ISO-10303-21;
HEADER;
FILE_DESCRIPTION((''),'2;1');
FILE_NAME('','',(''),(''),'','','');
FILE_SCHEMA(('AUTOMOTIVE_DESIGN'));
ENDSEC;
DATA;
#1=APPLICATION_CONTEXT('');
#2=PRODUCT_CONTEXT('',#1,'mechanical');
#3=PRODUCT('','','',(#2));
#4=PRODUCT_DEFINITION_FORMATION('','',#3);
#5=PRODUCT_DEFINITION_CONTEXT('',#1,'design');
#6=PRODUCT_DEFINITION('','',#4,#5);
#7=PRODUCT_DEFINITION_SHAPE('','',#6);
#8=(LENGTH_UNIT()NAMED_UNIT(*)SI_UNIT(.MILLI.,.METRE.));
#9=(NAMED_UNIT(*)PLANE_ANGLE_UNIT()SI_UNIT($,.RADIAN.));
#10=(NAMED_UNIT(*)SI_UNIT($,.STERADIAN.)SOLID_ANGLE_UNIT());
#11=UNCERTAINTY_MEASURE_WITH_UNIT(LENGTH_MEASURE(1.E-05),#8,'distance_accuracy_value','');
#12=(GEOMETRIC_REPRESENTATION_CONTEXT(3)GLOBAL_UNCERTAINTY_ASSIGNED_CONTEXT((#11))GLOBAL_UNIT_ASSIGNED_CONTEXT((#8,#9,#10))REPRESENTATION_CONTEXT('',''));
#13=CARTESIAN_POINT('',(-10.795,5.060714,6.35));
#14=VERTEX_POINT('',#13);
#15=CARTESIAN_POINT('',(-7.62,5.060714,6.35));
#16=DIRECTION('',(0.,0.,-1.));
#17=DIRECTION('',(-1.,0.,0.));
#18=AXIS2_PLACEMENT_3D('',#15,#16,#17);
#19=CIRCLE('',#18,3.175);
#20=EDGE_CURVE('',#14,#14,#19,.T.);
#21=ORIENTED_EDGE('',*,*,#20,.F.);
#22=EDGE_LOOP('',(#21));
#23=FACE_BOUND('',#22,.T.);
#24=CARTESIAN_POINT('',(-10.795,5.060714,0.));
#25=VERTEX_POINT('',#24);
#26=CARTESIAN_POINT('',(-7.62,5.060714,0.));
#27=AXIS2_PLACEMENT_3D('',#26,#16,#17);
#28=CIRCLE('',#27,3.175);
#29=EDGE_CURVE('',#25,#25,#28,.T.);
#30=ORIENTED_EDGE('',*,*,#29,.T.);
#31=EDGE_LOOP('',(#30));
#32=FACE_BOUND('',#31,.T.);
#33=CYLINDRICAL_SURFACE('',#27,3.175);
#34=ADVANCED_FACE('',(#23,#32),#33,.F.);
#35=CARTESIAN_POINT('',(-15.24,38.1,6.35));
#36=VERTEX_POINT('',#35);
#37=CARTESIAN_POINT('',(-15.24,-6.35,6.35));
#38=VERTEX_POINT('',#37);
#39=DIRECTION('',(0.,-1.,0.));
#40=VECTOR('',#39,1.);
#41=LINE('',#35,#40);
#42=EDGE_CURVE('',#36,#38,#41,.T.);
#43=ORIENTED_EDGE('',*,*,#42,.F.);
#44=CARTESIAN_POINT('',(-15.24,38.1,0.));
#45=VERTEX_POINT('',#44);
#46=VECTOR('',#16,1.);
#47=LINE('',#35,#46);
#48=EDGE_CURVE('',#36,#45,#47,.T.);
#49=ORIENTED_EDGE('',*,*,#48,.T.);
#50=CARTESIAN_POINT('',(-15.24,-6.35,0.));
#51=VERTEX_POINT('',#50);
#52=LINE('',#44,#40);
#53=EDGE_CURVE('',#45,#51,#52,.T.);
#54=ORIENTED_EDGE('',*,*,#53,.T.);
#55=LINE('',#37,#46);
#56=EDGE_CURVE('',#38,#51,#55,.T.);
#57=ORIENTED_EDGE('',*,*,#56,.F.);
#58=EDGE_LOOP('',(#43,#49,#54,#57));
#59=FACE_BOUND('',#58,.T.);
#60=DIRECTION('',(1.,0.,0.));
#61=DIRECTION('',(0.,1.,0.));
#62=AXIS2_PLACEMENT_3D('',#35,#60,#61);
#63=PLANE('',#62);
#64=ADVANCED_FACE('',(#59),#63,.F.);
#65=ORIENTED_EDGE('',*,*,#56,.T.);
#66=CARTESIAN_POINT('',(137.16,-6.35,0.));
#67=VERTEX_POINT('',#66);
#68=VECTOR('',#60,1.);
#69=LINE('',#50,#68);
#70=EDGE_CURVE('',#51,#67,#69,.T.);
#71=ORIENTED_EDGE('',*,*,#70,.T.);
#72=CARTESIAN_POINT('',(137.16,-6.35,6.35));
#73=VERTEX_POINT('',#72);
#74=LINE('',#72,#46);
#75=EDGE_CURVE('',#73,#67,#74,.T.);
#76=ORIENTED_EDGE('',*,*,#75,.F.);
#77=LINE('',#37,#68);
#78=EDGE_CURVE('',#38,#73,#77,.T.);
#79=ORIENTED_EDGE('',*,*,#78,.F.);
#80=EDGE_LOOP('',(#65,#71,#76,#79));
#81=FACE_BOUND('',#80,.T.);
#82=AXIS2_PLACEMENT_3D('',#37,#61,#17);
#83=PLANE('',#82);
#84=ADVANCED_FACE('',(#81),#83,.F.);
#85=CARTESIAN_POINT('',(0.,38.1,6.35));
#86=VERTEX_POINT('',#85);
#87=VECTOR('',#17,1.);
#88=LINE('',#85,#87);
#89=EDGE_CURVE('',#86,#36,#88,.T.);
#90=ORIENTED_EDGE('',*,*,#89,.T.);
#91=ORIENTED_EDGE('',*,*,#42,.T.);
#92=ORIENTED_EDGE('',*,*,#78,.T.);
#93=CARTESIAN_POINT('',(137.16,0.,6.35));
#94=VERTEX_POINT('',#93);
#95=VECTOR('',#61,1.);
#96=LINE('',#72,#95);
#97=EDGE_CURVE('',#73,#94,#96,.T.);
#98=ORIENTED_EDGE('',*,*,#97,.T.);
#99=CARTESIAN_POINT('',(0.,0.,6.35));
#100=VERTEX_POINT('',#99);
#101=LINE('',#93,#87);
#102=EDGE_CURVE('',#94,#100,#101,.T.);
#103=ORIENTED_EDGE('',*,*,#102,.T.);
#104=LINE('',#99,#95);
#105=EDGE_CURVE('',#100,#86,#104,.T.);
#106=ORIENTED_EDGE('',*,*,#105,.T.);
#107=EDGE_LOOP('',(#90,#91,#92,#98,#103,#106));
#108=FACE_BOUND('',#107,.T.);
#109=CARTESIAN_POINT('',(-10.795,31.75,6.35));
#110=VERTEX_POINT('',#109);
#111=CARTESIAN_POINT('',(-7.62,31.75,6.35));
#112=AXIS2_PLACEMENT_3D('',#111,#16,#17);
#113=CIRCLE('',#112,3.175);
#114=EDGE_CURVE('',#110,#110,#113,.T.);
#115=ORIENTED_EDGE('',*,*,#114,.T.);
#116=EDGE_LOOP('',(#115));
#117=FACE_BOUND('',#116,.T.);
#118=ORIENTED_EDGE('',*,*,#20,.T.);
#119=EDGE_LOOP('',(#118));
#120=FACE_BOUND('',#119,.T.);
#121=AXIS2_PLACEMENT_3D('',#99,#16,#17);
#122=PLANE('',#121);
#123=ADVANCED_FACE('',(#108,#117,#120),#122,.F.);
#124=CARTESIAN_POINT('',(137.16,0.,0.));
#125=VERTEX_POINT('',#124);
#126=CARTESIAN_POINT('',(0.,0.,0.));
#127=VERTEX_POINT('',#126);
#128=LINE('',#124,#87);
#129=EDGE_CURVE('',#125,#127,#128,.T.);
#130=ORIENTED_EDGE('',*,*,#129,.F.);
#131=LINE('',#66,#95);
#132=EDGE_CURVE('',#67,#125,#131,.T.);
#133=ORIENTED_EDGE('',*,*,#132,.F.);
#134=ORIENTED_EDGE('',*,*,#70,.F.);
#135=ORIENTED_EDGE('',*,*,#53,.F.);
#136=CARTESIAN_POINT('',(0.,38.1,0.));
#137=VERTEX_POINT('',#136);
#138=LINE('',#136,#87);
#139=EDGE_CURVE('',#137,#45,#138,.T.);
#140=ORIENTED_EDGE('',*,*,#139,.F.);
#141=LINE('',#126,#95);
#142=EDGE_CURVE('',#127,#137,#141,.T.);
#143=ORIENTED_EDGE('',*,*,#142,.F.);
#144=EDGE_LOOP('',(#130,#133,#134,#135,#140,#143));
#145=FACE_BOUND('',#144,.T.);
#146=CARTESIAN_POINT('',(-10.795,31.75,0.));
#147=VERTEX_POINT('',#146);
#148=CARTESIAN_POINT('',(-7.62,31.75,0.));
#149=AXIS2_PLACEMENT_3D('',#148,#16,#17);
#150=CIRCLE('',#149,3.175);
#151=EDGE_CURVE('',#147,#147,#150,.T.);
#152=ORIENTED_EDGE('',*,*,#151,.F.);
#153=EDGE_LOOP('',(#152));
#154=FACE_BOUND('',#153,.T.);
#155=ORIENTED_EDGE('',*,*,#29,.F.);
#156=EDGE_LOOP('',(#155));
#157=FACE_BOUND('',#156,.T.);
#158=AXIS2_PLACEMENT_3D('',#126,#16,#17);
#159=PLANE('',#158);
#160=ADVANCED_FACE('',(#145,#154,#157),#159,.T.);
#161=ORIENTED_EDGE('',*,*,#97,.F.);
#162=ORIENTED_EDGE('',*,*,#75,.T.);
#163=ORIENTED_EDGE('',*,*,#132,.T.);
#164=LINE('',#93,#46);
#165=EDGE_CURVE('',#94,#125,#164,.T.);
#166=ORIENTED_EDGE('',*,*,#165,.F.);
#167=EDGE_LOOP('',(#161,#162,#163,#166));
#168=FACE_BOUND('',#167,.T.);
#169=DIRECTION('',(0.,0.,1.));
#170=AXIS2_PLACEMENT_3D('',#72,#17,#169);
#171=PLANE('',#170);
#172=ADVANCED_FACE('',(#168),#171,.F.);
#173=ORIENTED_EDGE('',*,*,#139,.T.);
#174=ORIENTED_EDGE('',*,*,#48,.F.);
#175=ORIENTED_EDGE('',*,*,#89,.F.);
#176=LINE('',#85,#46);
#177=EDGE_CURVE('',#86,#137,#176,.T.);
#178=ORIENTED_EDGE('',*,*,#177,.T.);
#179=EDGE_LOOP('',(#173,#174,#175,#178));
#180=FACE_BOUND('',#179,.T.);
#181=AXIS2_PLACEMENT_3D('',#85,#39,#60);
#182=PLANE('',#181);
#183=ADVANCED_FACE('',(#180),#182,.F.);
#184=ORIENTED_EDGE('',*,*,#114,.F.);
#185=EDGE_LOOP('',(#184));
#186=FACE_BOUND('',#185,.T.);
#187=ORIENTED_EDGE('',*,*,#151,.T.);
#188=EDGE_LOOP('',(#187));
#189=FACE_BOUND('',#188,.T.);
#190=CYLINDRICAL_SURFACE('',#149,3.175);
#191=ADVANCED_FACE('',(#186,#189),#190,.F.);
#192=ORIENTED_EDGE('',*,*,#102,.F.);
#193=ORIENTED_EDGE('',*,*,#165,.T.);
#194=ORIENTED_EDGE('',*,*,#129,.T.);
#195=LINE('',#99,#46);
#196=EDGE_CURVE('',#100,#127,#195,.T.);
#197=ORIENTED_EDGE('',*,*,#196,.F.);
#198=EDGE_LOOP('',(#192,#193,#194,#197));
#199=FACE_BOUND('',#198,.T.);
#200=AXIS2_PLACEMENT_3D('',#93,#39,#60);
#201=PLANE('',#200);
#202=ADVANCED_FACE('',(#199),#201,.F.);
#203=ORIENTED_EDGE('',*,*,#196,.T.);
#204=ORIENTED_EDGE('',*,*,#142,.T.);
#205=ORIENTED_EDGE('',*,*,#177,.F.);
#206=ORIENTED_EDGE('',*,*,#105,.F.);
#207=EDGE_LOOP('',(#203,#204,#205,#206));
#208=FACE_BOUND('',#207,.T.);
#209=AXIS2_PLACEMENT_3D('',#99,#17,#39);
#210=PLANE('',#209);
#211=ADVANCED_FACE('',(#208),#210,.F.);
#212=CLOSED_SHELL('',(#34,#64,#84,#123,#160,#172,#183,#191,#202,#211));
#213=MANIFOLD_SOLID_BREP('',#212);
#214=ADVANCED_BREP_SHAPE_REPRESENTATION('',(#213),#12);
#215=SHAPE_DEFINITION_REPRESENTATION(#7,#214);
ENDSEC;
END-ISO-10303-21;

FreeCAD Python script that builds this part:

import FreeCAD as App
import Part
import Sketcher

V = App.Vector
Q = App.Units.Quantity


def add_polygon(sketch, points):
    """Adds a closed chain of lines whose ends are joined by coincident constraints."""
    first, n = sketch.GeometryCount, len(points)
    for a, b in zip(points, points[1:] + points[:1]):
        sketch.addGeometry(Part.LineSegment(App.Vector(*a, 0), App.Vector(*b, 0)), False)
    for i in range(n):
        sketch.addConstraint(Sketcher.Constraint("Coincident", first + i, 2, first + (i + 1) % n, 1))

doc = App.newDocument("Part")
body = doc.addObject("PartDesign::Body", "Body")

# Sketch on XY plane
sketch1 = doc.addObject("Sketcher::SketchObject", "Sketch")
body.addObject(sketch1)
sketch1.AttachmentSupport = (doc.XY_Plane, [""])
sketch1.MapMode = "FlatFace"
add_polygon(sketch1, [(0, 0), (0, 38), (-15, 38), (-15, -6), (137, -6), (137, 0)])  # lines 0-5
sketch1.addConstraint(Sketcher.Constraint("Vertical", 0))
sketch1.addConstraint(Sketcher.Constraint("Horizontal", 1))
sketch1.addConstraint(Sketcher.Constraint("Vertical", 2))
sketch1.addConstraint(Sketcher.Constraint("Horizontal", 3))
sketch1.addConstraint(Sketcher.Constraint("Vertical", 4))
sketch1.addConstraint(Sketcher.Constraint("Horizontal", 5))
sketch1.addConstraint(Sketcher.Constraint("Coincident", 5, 2, -1, 1))
sketch1.addConstraint(Sketcher.Constraint("DistanceX", 3, 1, 3, 2, Q("6 in")))
sketch1.addConstraint(Sketcher.Constraint("DistanceX", 1, 2, 1, 1, Q("0.6 in")))
sketch1.addConstraint(Sketcher.Constraint("DistanceY", 0, 1, 0, 2, Q("1.5 in")))
sketch1.addConstraint(Sketcher.Constraint("DistanceY", 2, 2, 2, 1, Q("1.75 in")))
pad1 = doc.addObject("PartDesign::Pad", "Pad")
body.addObject(pad1)
pad1.Profile = sketch1
pad1.Length = Q("0.25 in")

# Sketch on XY plane
sketch2 = doc.addObject("Sketcher::SketchObject", "Sketch001")
body.addObject(sketch2)
sketch2.AttachmentSupport = (doc.XY_Plane, [""])
sketch2.MapMode = "FlatFace"
sketch2.addGeometry(Part.Circle(V(-7.6, 31.8, 0), V(0, 0, 1), 3.2), False)
sketch2.addGeometry(Part.Circle(V(-7.6, 5.1, 0), V(0, 0, 1), 3.2), False)
sketch2.addConstraint(Sketcher.Constraint("Equal", 0, 1))
sketch2.addConstraint(Sketcher.Constraint("Vertical", 0, 3, 1, 3))
sketch2.addConstraint(Sketcher.Constraint("Diameter", 0, Q("0.25 in")))
sketch2.addConstraint(Sketcher.Constraint("DistanceX", 0, 3, -1, 1, Q("0.3 in")))
sketch2.addConstraint(Sketcher.Constraint("DistanceY", -1, 1, 0, 3, Q("1.25 in")))
sketch2.addConstraint(Sketcher.Constraint("DistanceY", -1, 1, 1, 3, Q("5.060714 mm")))
doc.recompute()
hole = doc.addObject("PartDesign::Hole", "Hole")
body.addObject(hole)
hole.Profile = sketch2
hole.ThreadType = "None"
hole.Diameter = Q("0.25 in")
hole.DepthType = "ThroughAll"
hole.Reversed = True

doc.recompute()
